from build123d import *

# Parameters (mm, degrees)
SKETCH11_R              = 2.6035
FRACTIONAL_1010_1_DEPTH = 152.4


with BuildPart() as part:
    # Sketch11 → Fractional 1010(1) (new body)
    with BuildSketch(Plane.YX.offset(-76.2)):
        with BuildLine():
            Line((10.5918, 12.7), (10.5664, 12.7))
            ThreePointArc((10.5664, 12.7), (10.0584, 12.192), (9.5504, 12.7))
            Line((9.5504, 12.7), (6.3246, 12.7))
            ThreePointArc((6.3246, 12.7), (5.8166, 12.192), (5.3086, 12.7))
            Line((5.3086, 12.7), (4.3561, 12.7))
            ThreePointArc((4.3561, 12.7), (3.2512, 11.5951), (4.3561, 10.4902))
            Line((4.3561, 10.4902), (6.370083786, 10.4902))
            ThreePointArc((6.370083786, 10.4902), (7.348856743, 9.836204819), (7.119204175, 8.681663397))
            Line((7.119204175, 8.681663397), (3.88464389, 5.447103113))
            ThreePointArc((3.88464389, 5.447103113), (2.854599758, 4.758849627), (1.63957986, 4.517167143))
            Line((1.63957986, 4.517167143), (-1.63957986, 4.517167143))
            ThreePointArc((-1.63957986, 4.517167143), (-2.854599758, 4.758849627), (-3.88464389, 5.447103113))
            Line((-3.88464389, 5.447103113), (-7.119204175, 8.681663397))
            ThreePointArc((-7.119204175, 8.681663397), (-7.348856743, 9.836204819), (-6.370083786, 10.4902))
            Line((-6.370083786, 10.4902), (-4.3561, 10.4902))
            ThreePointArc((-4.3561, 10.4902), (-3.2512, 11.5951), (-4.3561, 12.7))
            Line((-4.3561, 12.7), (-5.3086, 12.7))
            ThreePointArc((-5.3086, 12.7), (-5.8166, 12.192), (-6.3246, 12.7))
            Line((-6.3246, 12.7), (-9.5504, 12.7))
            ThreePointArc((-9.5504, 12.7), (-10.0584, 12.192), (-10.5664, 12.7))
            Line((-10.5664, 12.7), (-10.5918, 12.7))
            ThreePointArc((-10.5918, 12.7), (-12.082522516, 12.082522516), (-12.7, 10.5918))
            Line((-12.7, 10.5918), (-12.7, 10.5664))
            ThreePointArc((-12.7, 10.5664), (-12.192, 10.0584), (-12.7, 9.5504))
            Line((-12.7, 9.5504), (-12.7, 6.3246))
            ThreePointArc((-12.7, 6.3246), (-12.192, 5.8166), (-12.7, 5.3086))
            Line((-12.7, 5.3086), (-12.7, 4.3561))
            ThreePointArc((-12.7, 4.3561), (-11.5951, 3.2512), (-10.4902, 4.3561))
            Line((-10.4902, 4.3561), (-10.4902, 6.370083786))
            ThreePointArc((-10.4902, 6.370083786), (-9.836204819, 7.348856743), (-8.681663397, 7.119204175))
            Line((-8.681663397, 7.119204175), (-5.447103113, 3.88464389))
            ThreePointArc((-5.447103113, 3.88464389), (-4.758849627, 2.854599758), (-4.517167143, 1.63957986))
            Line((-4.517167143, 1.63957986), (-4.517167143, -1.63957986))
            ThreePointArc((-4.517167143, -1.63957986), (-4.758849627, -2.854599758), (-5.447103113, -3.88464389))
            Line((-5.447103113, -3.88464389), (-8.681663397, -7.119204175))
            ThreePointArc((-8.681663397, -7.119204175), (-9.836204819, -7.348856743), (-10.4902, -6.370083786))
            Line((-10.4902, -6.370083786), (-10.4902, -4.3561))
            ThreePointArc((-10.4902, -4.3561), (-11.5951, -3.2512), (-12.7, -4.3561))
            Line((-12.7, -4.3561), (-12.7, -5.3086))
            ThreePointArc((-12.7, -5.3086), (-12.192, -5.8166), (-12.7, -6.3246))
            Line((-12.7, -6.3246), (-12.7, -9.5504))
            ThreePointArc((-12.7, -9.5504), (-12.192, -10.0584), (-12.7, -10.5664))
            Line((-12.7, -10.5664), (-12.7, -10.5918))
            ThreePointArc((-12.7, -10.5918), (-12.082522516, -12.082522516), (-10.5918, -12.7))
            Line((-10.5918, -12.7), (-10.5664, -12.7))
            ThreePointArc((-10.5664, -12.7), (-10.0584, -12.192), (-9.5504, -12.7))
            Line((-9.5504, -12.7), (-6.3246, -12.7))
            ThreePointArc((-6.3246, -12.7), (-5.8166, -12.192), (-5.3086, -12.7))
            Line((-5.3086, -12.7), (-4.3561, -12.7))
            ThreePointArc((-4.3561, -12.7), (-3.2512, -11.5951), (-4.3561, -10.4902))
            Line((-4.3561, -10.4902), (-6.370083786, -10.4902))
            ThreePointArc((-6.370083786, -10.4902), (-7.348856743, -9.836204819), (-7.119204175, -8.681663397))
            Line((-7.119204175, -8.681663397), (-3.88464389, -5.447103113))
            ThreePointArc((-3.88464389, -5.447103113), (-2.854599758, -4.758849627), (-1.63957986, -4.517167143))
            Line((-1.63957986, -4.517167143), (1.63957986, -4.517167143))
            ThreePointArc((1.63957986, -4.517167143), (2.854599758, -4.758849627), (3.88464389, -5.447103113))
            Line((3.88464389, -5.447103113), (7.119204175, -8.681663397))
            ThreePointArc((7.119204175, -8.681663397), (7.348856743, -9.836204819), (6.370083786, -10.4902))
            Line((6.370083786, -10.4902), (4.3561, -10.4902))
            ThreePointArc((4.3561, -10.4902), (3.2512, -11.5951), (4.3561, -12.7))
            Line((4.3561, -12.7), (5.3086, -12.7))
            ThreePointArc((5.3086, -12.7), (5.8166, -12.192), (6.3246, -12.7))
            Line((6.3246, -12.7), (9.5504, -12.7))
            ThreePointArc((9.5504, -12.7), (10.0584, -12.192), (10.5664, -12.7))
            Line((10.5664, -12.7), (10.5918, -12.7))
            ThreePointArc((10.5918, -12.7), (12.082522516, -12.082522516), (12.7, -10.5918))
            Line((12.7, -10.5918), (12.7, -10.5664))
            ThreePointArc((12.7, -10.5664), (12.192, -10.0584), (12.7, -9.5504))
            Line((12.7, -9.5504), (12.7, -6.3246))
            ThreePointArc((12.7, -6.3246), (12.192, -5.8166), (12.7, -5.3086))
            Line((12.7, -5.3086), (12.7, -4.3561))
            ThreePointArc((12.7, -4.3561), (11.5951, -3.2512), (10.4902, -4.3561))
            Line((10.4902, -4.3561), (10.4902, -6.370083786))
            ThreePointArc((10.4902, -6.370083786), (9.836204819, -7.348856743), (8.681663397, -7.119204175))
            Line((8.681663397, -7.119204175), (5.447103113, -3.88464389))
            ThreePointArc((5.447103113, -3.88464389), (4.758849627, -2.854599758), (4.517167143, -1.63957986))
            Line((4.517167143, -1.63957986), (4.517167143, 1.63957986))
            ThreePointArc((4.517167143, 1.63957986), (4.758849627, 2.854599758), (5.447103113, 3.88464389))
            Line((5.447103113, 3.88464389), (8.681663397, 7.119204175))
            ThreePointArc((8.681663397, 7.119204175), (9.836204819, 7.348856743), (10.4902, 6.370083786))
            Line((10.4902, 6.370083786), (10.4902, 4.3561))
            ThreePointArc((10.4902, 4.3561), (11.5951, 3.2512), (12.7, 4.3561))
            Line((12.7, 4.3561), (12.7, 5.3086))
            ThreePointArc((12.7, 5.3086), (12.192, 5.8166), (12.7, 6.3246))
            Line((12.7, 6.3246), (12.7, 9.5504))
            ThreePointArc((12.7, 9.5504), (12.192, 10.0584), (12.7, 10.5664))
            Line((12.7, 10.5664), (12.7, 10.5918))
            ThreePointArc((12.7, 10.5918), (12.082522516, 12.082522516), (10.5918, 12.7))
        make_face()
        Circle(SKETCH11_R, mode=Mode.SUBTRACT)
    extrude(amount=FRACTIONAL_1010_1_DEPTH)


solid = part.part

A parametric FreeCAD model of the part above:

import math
import FreeCAD as App
import Part
import Sketcher

V = App.Vector
Q = App.Units.Quantity

doc = App.newDocument("Part")
body = doc.addObject("PartDesign::Body", "Body")

sketch1 = body.newObject("Sketcher::SketchObject", "Sketch")
sketch1.AttachmentSupport = (doc.getObject("XY_Plane"), [""])
sketch1.MapMode = "FlatFace"
sketch1.AttachmentOffset = App.Placement(V(0, 0, 3 * 25.4), App.Rotation())
sketch1.addGeometry([
    Part.LineSegment(V(12.7, 10.592, 0), V(12.7, 10.566, 0)),
    Part.ArcOfCircle(Part.Circle(V(12.7, 10.058, 0), V(0, 0, 1), 0.508), math.radians(90), math.radians(270)),
    Part.LineSegment(V(12.7, 9.55, 0), V(12.7, 6.325, 0)),
    Part.ArcOfCircle(Part.Circle(V(12.7, 5.817, 0), V(0, 0, 1), 0.508), math.radians(90), math.radians(270)),
    Part.LineSegment(V(12.7, 5.309, 0), V(12.7, 4.356, 0)),
    Part.ArcOfCircle(Part.Circle(V(11.595, 4.356, 0), V(0, 0, 1), 1.105), math.radians(180), math.radians(360)),
    Part.LineSegment(V(10.49, 4.356, 0), V(10.49, 6.37, 0)),
    Part.ArcOfCircle(Part.Circle(V(9.431, 6.37, 0), V(0, 0, 1), 1.059), math.radians(0), math.radians(135)),
    Part.LineSegment(V(8.682, 7.119, 0), V(5.447, 3.885, 0)),
    Part.ArcOfCircle(Part.Circle(V(7.692, 1.64, 0), V(0, 0, 1), 3.175), math.radians(135), math.radians(180)),
    Part.LineSegment(V(4.517, 1.64, 0), V(4.517, -1.64, 0)),
    Part.ArcOfCircle(Part.Circle(V(7.692, -1.64, 0), V(0, 0, 1), 3.175), math.radians(180), math.radians(225)),
    Part.LineSegment(V(5.447, -3.885, 0), V(8.682, -7.119, 0)),
    Part.ArcOfCircle(Part.Circle(V(9.431, -6.37, 0), V(0, 0, 1), 1.059), math.radians(-135), math.radians(0)),
    Part.LineSegment(V(10.49, -6.37, 0), V(10.49, -4.356, 0)),
    Part.ArcOfCircle(Part.Circle(V(11.595, -4.356, 0), V(0, 0, 1), 1.105), math.radians(0), math.radians(180)),
    Part.LineSegment(V(12.7, -4.356, 0), V(12.7, -5.309, 0)),
    Part.ArcOfCircle(Part.Circle(V(12.7, -5.817, 0), V(0, 0, 1), 0.508), math.radians(90), math.radians(270)),
    Part.LineSegment(V(12.7, -6.325, 0), V(12.7, -9.55, 0)),
    Part.ArcOfCircle(Part.Circle(V(12.7, -10.058, 0), V(0, 0, 1), 0.508), math.radians(90), math.radians(270)),
    Part.LineSegment(V(12.7, -10.566, 0), V(12.7, -10.592, 0)),
    Part.ArcOfCircle(Part.Circle(V(10.592, -10.592, 0), V(0, 0, 1), 2.108), math.radians(-90), math.radians(0)),
    Part.LineSegment(V(10.592, -12.7, 0), V(10.566, -12.7, 0)),
    Part.ArcOfCircle(Part.Circle(V(10.058, -12.7, 0), V(0, 0, 1), 0.508), math.radians(0), math.radians(180)),
    Part.LineSegment(V(9.55, -12.7, 0), V(6.325, -12.7, 0)),
    Part.ArcOfCircle(Part.Circle(V(5.817, -12.7, 0), V(0, 0, 1), 0.508), math.radians(0), math.radians(180)),
    Part.LineSegment(V(5.309, -12.7, 0), V(4.356, -12.7, 0)),
    Part.ArcOfCircle(Part.Circle(V(4.356, -11.595, 0), V(0, 0, 1), 1.105), math.radians(90), math.radians(270)),
    Part.LineSegment(V(4.356, -10.49, 0), V(6.37, -10.49, 0)),
    Part.ArcOfCircle(Part.Circle(V(6.37, -9.431, 0), V(0, 0, 1), 1.059), math.radians(-90), math.radians(45)),
    Part.LineSegment(V(7.119, -8.682, 0), V(3.885, -5.447, 0)),
    Part.ArcOfCircle(Part.Circle(V(1.64, -7.692, 0), V(0, 0, 1), 3.175), math.radians(45), math.radians(90)),
    Part.LineSegment(V(1.64, -4.517, 0), V(-1.64, -4.517, 0)),
    Part.ArcOfCircle(Part.Circle(V(-1.64, -7.692, 0), V(0, 0, 1), 3.175), math.radians(90), math.radians(135)),
    Part.LineSegment(V(-3.885, -5.447, 0), V(-7.119, -8.682, 0)),
    Part.ArcOfCircle(Part.Circle(V(-6.37, -9.431, 0), V(0, 0, 1), 1.059), math.radians(135), math.radians(270)),
    Part.LineSegment(V(-6.37, -10.49, 0), V(-4.356, -10.49, 0)),
    Part.ArcOfCircle(Part.Circle(V(-4.356, -11.595, 0), V(0, 0, 1), 1.105), math.radians(-90), math.radians(90)),
    Part.LineSegment(V(-4.356, -12.7, 0), V(-5.309, -12.7, 0)),
    Part.ArcOfCircle(Part.Circle(V(-5.817, -12.7, 0), V(0, 0, 1), 0.508), math.radians(0), math.radians(180)),
    Part.LineSegment(V(-6.325, -12.7, 0), V(-9.55, -12.7, 0)),
    Part.ArcOfCircle(Part.Circle(V(-10.058, -12.7, 0), V(0, 0, 1), 0.508), math.radians(0), math.radians(180)),
    Part.LineSegment(V(-10.566, -12.7, 0), V(-10.592, -12.7, 0)),
    Part.ArcOfCircle(Part.Circle(V(-10.592, -10.592, 0), V(0, 0, 1), 2.108), math.radians(180), math.radians(270)),
    Part.LineSegment(V(-12.7, -10.592, 0), V(-12.7, -10.566, 0)),
    Part.ArcOfCircle(Part.Circle(V(-12.7, -10.058, 0), V(0, 0, 1), 0.508), math.radians(-90), math.radians(90)),
    Part.LineSegment(V(-12.7, -9.55, 0), V(-12.7, -6.325, 0)),
    Part.ArcOfCircle(Part.Circle(V(-12.7, -5.817, 0), V(0, 0, 1), 0.508), math.radians(-90), math.radians(90)),
    Part.LineSegment(V(-12.7, -5.309, 0), V(-12.7, -4.356, 0)),
    Part.ArcOfCircle(Part.Circle(V(-11.595, -4.356, 0), V(0, 0, 1), 1.105), math.radians(0), math.radians(180)),
    Part.LineSegment(V(-10.49, -4.356, 0), V(-10.49, -6.37, 0)),
    Part.ArcOfCircle(Part.Circle(V(-9.431, -6.37, 0), V(0, 0, 1), 1.059), math.radians(180), math.radians(315)),
    Part.LineSegment(V(-8.682, -7.119, 0), V(-5.447, -3.885, 0)),
    Part.ArcOfCircle(Part.Circle(V(-7.692, -1.64, 0), V(0, 0, 1), 3.175), math.radians(-45), math.radians(0)),
    Part.LineSegment(V(-4.517, -1.64, 0), V(-4.517, 1.64, 0)),
    Part.ArcOfCircle(Part.Circle(V(-7.692, 1.64, 0), V(0, 0, 1), 3.175), math.radians(0), math.radians(45)),
    Part.LineSegment(V(-5.447, 3.885, 0), V(-8.682, 7.119, 0)),
    Part.ArcOfCircle(Part.Circle(V(-9.431, 6.37, 0), V(0, 0, 1), 1.059), math.radians(45), math.radians(180)),
    Part.LineSegment(V(-10.49, 6.37, 0), V(-10.49, 4.356, 0)),
    Part.ArcOfCircle(Part.Circle(V(-11.595, 4.356, 0), V(0, 0, 1), 1.105), math.radians(180), math.radians(360)),
    Part.LineSegment(V(-12.7, 4.356, 0), V(-12.7, 5.309, 0)),
    Part.ArcOfCircle(Part.Circle(V(-12.7, 5.817, 0), V(0, 0, 1), 0.508), math.radians(-90), math.radians(90)),
    Part.LineSegment(V(-12.7, 6.325, 0), V(-12.7, 9.55, 0)),
    Part.ArcOfCircle(Part.Circle(V(-12.7, 10.058, 0), V(0, 0, 1), 0.508), math.radians(-90), math.radians(90)),
    Part.LineSegment(V(-12.7, 10.566, 0), V(-12.7, 10.592, 0)),
    Part.ArcOfCircle(Part.Circle(V(-10.592, 10.592, 0), V(0, 0, 1), 2.108), math.radians(90), math.radians(180)),
    Part.LineSegment(V(-10.592, 12.7, 0), V(-10.566, 12.7, 0)),
    Part.ArcOfCircle(Part.Circle(V(-10.058, 12.7, 0), V(0, 0, 1), 0.508), math.radians(180), math.radians(360)),
    Part.LineSegment(V(-9.55, 12.7, 0), V(-6.325, 12.7, 0)),
    Part.ArcOfCircle(Part.Circle(V(-5.817, 12.7, 0), V(0, 0, 1), 0.508), math.radians(180), math.radians(360)),
    Part.LineSegment(V(-5.309, 12.7, 0), V(-4.356, 12.7, 0)),
    Part.ArcOfCircle(Part.Circle(V(-4.356, 11.595, 0), V(0, 0, 1), 1.105), math.radians(-90), math.radians(90)),
    Part.LineSegment(V(-4.356, 10.49, 0), V(-6.37, 10.49, 0)),
    Part.ArcOfCircle(Part.Circle(V(-6.37, 9.431, 0), V(0, 0, 1), 1.059), math.radians(90), math.radians(225)),
    Part.LineSegment(V(-7.119, 8.682, 0), V(-3.885, 5.447, 0)),
    Part.ArcOfCircle(Part.Circle(V(-1.64, 7.692, 0), V(0, 0, 1), 3.175), math.radians(-135), math.radians(-90)),
    Part.LineSegment(V(-1.64, 4.517, 0), V(1.64, 4.517, 0)),
    Part.ArcOfCircle(Part.Circle(V(1.64, 7.692, 0), V(0, 0, 1), 3.175), math.radians(-90), math.radians(-45)),
    Part.LineSegment(V(3.885, 5.447, 0), V(7.119, 8.682, 0)),
    Part.ArcOfCircle(Part.Circle(V(6.37, 9.431, 0), V(0, 0, 1), 1.059), math.radians(-45), math.radians(90)),
    Part.LineSegment(V(6.37, 10.49, 0), V(4.356, 10.49, 0)),
    Part.ArcOfCircle(Part.Circle(V(4.356, 11.595, 0), V(0, 0, 1), 1.105), math.radians(90), math.radians(270)),
    Part.LineSegment(V(4.356, 12.7, 0), V(5.309, 12.7, 0)),
    Part.ArcOfCircle(Part.Circle(V(5.817, 12.7, 0), V(0, 0, 1), 0.508), math.radians(180), math.radians(360)),
    Part.LineSegment(V(6.325, 12.7, 0), V(9.55, 12.7, 0)),
    Part.ArcOfCircle(Part.Circle(V(10.058, 12.7, 0), V(0, 0, 1), 0.508), math.radians(180), math.radians(360)),
    Part.LineSegment(V(10.566, 12.7, 0), V(10.592, 12.7, 0)),
    Part.ArcOfCircle(Part.Circle(V(10.592, 10.592, 0), V(0, 0, 1), 2.108), math.radians(0), math.radians(90)),
    Part.Circle(V(0, 0, 0), V(0, 0, 1), 2.603),
], False)
sketch1.addConstraint([
    Sketcher.Constraint("Coincident", 0, 2, 1, 1),
    Sketcher.Constraint("Coincident", 1, 2, 2, 1),
    Sketcher.Constraint("Coincident", 2, 2, 3, 1),
    Sketcher.Constraint("Coincident", 3, 2, 4, 1),
    Sketcher.Constraint("Tangent", 4, 2, 5, 2),
    Sketcher.Constraint("Tangent", 5, 1, 6, 1),
    Sketcher.Constraint("Tangent", 6, 2, 7, 1),
    Sketcher.Constraint("Tangent", 7, 2, 8, 1),
    Sketcher.Constraint("Tangent", 8, 2, 9, 1),
    Sketcher.Constraint("Tangent", 9, 2, 10, 1),
    Sketcher.Constraint("Tangent", 10, 2, 11, 1),
    Sketcher.Constraint("Tangent", 11, 2, 12, 1),
    Sketcher.Constraint("Tangent", 12, 2, 13, 1),
    Sketcher.Constraint("Tangent", 13, 2, 14, 1),
    Sketcher.Constraint("Tangent", 14, 2, 15, 2),
    Sketcher.Constraint("Tangent", 15, 1, 16, 1),
    Sketcher.Constraint("Coincident", 16, 2, 17, 1),
    Sketcher.Constraint("Coincident", 17, 2, 18, 1),
    Sketcher.Constraint("Coincident", 18, 2, 19, 1),
    Sketcher.Constraint("Coincident", 19, 2, 20, 1),
    Sketcher.Constraint("Tangent", 20, 2, 21, 2),
    Sketcher.Constraint("Tangent", 21, 1, 22, 1),
    Sketcher.Constraint("Coincident", 22, 2, 23, 1),
    Sketcher.Constraint("Coincident", 23, 2, 24, 1),
    Sketcher.Constraint("Coincident", 24, 2, 25, 1),
    Sketcher.Constraint("Coincident", 25, 2, 26, 1),
    Sketcher.Constraint("Tangent", 26, 2, 27, 2),
    Sketcher.Constraint("Tangent", 27, 1, 28, 1),
    Sketcher.Constraint("Tangent", 28, 2, 29, 1),
    Sketcher.Constraint("Tangent", 29, 2, 30, 1),
    Sketcher.Constraint("Tangent", 30, 2, 31, 1),
    Sketcher.Constraint("Tangent", 31, 2, 32, 1),
    Sketcher.Constraint("Tangent", 32, 2, 33, 1),
    Sketcher.Constraint("Tangent", 33, 2, 34, 1),
    Sketcher.Constraint("Tangent", 34, 2, 35, 1),
    Sketcher.Constraint("Tangent", 35, 2, 36, 1),
    Sketcher.Constraint("Tangent", 36, 2, 37, 2),
    Sketcher.Constraint("Tangent", 37, 1, 38, 1),
    Sketcher.Constraint("Coincident", 38, 2, 39, 1),
    Sketcher.Constraint("Coincident", 39, 2, 40, 1),
    Sketcher.Constraint("Coincident", 40, 2, 41, 1),
    Sketcher.Constraint("Coincident", 41, 2, 42, 1),
    Sketcher.Constraint("Tangent", 42, 2, 43, 2),
    Sketcher.Constraint("Tangent", 43, 1, 44, 1),
    Sketcher.Constraint("Coincident", 44, 2, 45, 1),
    Sketcher.Constraint("Coincident", 45, 2, 46, 1),
    Sketcher.Constraint("Coincident", 46, 2, 47, 1),
    Sketcher.Constraint("Coincident", 47, 2, 48, 1),
    Sketcher.Constraint("Tangent", 48, 2, 49, 2),
    Sketcher.Constraint("Tangent", 49, 1, 50, 1),
    Sketcher.Constraint("Tangent", 50, 2, 51, 1),
    Sketcher.Constraint("Tangent", 51, 2, 52, 1),
    Sketcher.Constraint("Tangent", 52, 2, 53, 1),
    Sketcher.Constraint("Tangent", 53, 2, 54, 1),
    Sketcher.Constraint("Tangent", 54, 2, 55, 1),
    Sketcher.Constraint("Tangent", 55, 2, 56, 1),
    Sketcher.Constraint("Tangent", 56, 2, 57, 1),
    Sketcher.Constraint("Tangent", 57, 2, 58, 1),
    Sketcher.Constraint("Tangent", 58, 2, 59, 2),
    Sketcher.Constraint("Tangent", 59, 1, 60, 1),
    Sketcher.Constraint("Coincident", 60, 2, 61, 1),
    Sketcher.Constraint("Coincident", 61, 2, 62, 1),
    Sketcher.Constraint("Coincident", 62, 2, 63, 1),
    Sketcher.Constraint("Coincident", 63, 2, 64, 1),
    Sketcher.Constraint("Tangent", 64, 2, 65, 2),
    Sketcher.Constraint("Tangent", 65, 1, 66, 1),
    Sketcher.Constraint("Coincident", 66, 2, 67, 1),
    Sketcher.Constraint("Coincident", 67, 2, 68, 1),
    Sketcher.Constraint("Coincident", 68, 2, 69, 1),
    Sketcher.Constraint("Coincident", 69, 2, 70, 1),
    Sketcher.Constraint("Tangent", 70, 2, 71, 2),
    Sketcher.Constraint("Tangent", 71, 1, 72, 1),
    Sketcher.Constraint("Tangent", 72, 2, 73, 1),
    Sketcher.Constraint("Tangent", 73, 2, 74, 1),
    Sketcher.Constraint("Tangent", 74, 2, 75, 1),
    Sketcher.Constraint("Tangent", 75, 2, 76, 1),
    Sketcher.Constraint("Tangent", 76, 2, 77, 1),
    Sketcher.Constraint("Tangent", 77, 2, 78, 1),
    Sketcher.Constraint("Tangent", 78, 2, 79, 1),
    Sketcher.Constraint("Tangent", 79, 2, 80, 1),
    Sketcher.Constraint("Tangent", 80, 2, 81, 2),
    Sketcher.Constraint("Tangent", 81, 1, 82, 1),
    Sketcher.Constraint("Coincident", 82, 2, 83, 1),
    Sketcher.Constraint("Coincident", 83, 2, 84, 1),
    Sketcher.Constraint("Coincident", 84, 2, 85, 1),
    Sketcher.Constraint("Coincident", 85, 2, 86, 1),
    Sketcher.Constraint("Tangent", 86, 2, 87, 2),
    Sketcher.Constraint("Tangent", 87, 1, 0, 1),
    Sketcher.Constraint("Vertical", 0),
    Sketcher.Constraint("Vertical", 2),
    Sketcher.Constraint("Vertical", 4),
    Sketcher.Constraint("Vertical", 6),
    Sketcher.Constraint("Vertical", 10),
    Sketcher.Constraint("Vertical", 14),
    Sketcher.Constraint("Vertical", 16),
    Sketcher.Constraint("Vertical", 18),
    Sketcher.Constraint("Vertical", 20),
    Sketcher.Constraint("Horizontal", 22),
    Sketcher.Constraint("Horizontal", 24),
    Sketcher.Constraint("Horizontal", 26),
    Sketcher.Constraint("Horizontal", 28),
    Sketcher.Constraint("Horizontal", 32),
    Sketcher.Constraint("Horizontal", 36),
    Sketcher.Constraint("Horizontal", 38),
    Sketcher.Constraint("Horizontal", 40),
    Sketcher.Constraint("Horizontal", 42),
    Sketcher.Constraint("Vertical", 44),
    Sketcher.Constraint("Vertical", 46),
    Sketcher.Constraint("Vertical", 48),
    Sketcher.Constraint("Vertical", 50),
    Sketcher.Constraint("Vertical", 54),
    Sketcher.Constraint("Vertical", 58),
    Sketcher.Constraint("Vertical", 60),
    Sketcher.Constraint("Vertical", 62),
    Sketcher.Constraint("Vertical", 64),
    Sketcher.Constraint("Horizontal", 66),
    Sketcher.Constraint("Horizontal", 68),
    Sketcher.Constraint("Horizontal", 70),
    Sketcher.Constraint("Horizontal", 72),
    Sketcher.Constraint("Horizontal", 76),
    Sketcher.Constraint("Horizontal", 80),
    Sketcher.Constraint("Horizontal", 82),
    Sketcher.Constraint("Horizontal", 84),
    Sketcher.Constraint("Horizontal", 86),
    Sketcher.Constraint("Coincident", 88, 3, -1, 1),
    Sketcher.Constraint("Equal", 1, 3),
    Sketcher.Constraint("Equal", 9, 11),
    Sketcher.Constraint("Equal", 7, 13),
    Sketcher.Constraint("Equal", 5, 15),
    Sketcher.Constraint("Equal", 3, 17),
    Sketcher.Constraint("Equal", 17, 19),
    Sketcher.Constraint("Equal", 19, 23),
    Sketcher.Constraint("Equal", 23, 25),
    Sketcher.Constraint("Equal", 15, 27),
    Sketcher.Constraint("Equal", 13, 29),
    Sketcher.Constraint("Equal", 11, 31),
    Sketcher.Constraint("Equal", 31, 33),
    Sketcher.Constraint("Equal", 29, 35),
    Sketcher.Constraint("Equal", 27, 37),
    Sketcher.Constraint("Equal", 25, 39),
    Sketcher.Constraint("Equal", 39, 41),
    Sketcher.Constraint("Equal", 21, 43),
    Sketcher.Constraint("Equal", 41, 45),
    Sketcher.Constraint("Equal", 45, 47),
    Sketcher.Constraint("Equal", 37, 49),
    Sketcher.Constraint("Equal", 35, 51),
    Sketcher.Constraint("Equal", 33, 53),
    Sketcher.Constraint("Equal", 53, 55),
    Sketcher.Constraint("Equal", 51, 57),
    Sketcher.Constraint("Equal", 49, 59),
    Sketcher.Constraint("Equal", 47, 61),
    Sketcher.Constraint("Equal", 61, 63),
    Sketcher.Constraint("Equal", 43, 65),
    Sketcher.Constraint("Equal", 63, 67),
    Sketcher.Constraint("Equal", 67, 69),
    Sketcher.Constraint("Equal", 59, 71),
    Sketcher.Constraint("Equal", 57, 73),
    Sketcher.Constraint("Equal", 55, 75),
    Sketcher.Constraint("Equal", 75, 77),
    Sketcher.Constraint("Equal", 73, 79),
    Sketcher.Constraint("Equal", 71, 81),
    Sketcher.Constraint("Equal", 69, 83),
    Sketcher.Constraint("Equal", 83, 85),
    Sketcher.Constraint("Equal", 65, 87),
    Sketcher.Constraint("Symmetric", 1, 3, 45, 3, -1, 1),
    Sketcher.Constraint("Symmetric", 3, 3, 47, 3, -1, 1),
    Sketcher.Constraint("Symmetric", 5, 3, 49, 3, -1, 1),
    Sketcher.Constraint("Symmetric", 9, 3, 53, 3, -1, 1),
    Sketcher.Constraint("Symmetric", 13, 3, 57, 3, -1, 1),
    Sketcher.Constraint("Symmetric", 17, 3, 61, 3, -1, 1),
    Sketcher.Constraint("Symmetric", 19, 3, 63, 3, -1, 1),
    Sketcher.Constraint("Symmetric", 21, 3, 65, 3, -1, 1),
    Sketcher.Constraint("Symmetric", 23, 3, 67, 3, -1, 1),
    Sketcher.Constraint("Symmetric", 25, 3, 69, 3, -1, 1),
    Sketcher.Constraint("Symmetric", 27, 3, 71, 3, -1, 1),
    Sketcher.Constraint("Symmetric", 31, 3, 75, 3, -1, 1),
    Sketcher.Constraint("Symmetric", 35, 3, 79, 3, -1, 1),
    Sketcher.Constraint("Symmetric", 39, 3, 83, 3, -1, 1),
    Sketcher.Constraint("Symmetric", 41, 3, 85, 3, -1, 1),
    Sketcher.Constraint("Symmetric", 43, 3, 87, 3, -1, 1),
    Sketcher.Constraint("Symmetric", 29, 3, 35, 3, -2),
    Sketcher.Constraint("Symmetric", 25, 3, 39, 3, -2),
    Sketcher.Constraint("Symmetric", 23, 3, 41, 3, -2),
    Sketcher.Constraint("Symmetric", 21, 3, 43, 3, -2),
    Sketcher.Constraint("Symmetric", 19, 3, 45, 3, -2),
    Sketcher.Constraint("Symmetric", 17, 3, 47, 3, -2),
    Sketcher.Constraint("Symmetric", 15, 3, 49, 3, -2),
    Sketcher.Constraint("Symmetric", 12, 2, 51, 2, -2),
    Sketcher.Constraint("Symmetric", 8, 2, 55, 2, -2),
    Sketcher.Constraint("Symmetric", 74, 2, 77, 2, -2),
    Sketcher.Constraint("Perpendicular", 8, 12),
    Sketcher.Constraint("Parallel", 12, 30),
    Sketcher.Constraint("Perpendicular", 30, 34),
    Sketcher.Constraint("Horizontal", 23, 3, 25, 3),
    Sketcher.Constraint("Horizontal", 5, 3, 59, 3),
    Sketcher.Constraint("Horizontal", 41, 3, 21, 1),
    Sketcher.Constraint("Horizontal", 22, 2, 23, 2),
    Sketcher.Constraint("Horizontal", 24, 2, 25, 2),
    Sketcher.Constraint("Horizontal", 38, 2, 39, 2),
    Sketcher.Constraint("Horizontal", 66, 2, 67, 2),
    Sketcher.Constraint("Horizontal", 82, 2, 83, 2),
    Sketcher.Constraint("Vertical", 1, 3, 3, 3),
    Sketcher.Constraint("Vertical", 37, 3, 71, 3),
    Sketcher.Constraint("Vertical", 27, 3, 81, 3),
    Sketcher.Constraint("Vertical", 19, 3, 0, 2),
    Sketcher.Constraint("Vertical", 0, 2, 1, 2),
    Sketcher.Constraint("Vertical", 2, 2, 3, 2),
    Sketcher.Constraint("Vertical", 16, 2, 17, 2),
    Sketcher.Constraint("Vertical", 44, 2, 45, 2),
    Sketcher.Constraint("Vertical", 60, 2, 61, 2),
    Sketcher.Constraint("Equal", 86, 0),
    Sketcher.Constraint("Equal", 84, 2),
    Sketcher.Constraint("Equal", 82, 4),
    Sketcher.Constraint("Equal", 80, 6),
    Sketcher.Constraint("Equal", 76, 10),
    Sketcher.Constraint("Equal", 12, 30),
    Sketcher.Constraint("Radius", 1, Q("0.02 in")),
    Sketcher.Constraint("Diameter", 88, Q("0.205 in")),
    Sketcher.Constraint("Radius", 9, Q("0.125 in")),
    Sketcher.Constraint("Radius", 21, Q("0.083 in")),
    Sketcher.Constraint("DistanceX", -1, 1, 1, 3, Q("0.5 in")),
    Sketcher.Constraint("Radius", 5, Q("0.0435 in")),
    Sketcher.Constraint("DistanceX", 22, 2, 22, 1, Q("0.001 in")),
    Sketcher.Constraint("DistanceX", 24, 2, 24, 1, Q("0.127 in")),
    Sketcher.Constraint("DistanceX", 26, 2, 26, 1, Q("0.0375 in")),
    Sketcher.Constraint("Radius", 7, 1.059416),
    Sketcher.Constraint("DistanceX", 32, 2, 32, 1, 3.27916),
    Sketcher.Constraint("Distance", 8, 4.574359),
])
pad1 = body.newObject("PartDesign::Pad", "Pad")
pad1.Profile = sketch1
pad1.Length = Q("6 in")
pad1.Reversed = True

doc.recompute()
